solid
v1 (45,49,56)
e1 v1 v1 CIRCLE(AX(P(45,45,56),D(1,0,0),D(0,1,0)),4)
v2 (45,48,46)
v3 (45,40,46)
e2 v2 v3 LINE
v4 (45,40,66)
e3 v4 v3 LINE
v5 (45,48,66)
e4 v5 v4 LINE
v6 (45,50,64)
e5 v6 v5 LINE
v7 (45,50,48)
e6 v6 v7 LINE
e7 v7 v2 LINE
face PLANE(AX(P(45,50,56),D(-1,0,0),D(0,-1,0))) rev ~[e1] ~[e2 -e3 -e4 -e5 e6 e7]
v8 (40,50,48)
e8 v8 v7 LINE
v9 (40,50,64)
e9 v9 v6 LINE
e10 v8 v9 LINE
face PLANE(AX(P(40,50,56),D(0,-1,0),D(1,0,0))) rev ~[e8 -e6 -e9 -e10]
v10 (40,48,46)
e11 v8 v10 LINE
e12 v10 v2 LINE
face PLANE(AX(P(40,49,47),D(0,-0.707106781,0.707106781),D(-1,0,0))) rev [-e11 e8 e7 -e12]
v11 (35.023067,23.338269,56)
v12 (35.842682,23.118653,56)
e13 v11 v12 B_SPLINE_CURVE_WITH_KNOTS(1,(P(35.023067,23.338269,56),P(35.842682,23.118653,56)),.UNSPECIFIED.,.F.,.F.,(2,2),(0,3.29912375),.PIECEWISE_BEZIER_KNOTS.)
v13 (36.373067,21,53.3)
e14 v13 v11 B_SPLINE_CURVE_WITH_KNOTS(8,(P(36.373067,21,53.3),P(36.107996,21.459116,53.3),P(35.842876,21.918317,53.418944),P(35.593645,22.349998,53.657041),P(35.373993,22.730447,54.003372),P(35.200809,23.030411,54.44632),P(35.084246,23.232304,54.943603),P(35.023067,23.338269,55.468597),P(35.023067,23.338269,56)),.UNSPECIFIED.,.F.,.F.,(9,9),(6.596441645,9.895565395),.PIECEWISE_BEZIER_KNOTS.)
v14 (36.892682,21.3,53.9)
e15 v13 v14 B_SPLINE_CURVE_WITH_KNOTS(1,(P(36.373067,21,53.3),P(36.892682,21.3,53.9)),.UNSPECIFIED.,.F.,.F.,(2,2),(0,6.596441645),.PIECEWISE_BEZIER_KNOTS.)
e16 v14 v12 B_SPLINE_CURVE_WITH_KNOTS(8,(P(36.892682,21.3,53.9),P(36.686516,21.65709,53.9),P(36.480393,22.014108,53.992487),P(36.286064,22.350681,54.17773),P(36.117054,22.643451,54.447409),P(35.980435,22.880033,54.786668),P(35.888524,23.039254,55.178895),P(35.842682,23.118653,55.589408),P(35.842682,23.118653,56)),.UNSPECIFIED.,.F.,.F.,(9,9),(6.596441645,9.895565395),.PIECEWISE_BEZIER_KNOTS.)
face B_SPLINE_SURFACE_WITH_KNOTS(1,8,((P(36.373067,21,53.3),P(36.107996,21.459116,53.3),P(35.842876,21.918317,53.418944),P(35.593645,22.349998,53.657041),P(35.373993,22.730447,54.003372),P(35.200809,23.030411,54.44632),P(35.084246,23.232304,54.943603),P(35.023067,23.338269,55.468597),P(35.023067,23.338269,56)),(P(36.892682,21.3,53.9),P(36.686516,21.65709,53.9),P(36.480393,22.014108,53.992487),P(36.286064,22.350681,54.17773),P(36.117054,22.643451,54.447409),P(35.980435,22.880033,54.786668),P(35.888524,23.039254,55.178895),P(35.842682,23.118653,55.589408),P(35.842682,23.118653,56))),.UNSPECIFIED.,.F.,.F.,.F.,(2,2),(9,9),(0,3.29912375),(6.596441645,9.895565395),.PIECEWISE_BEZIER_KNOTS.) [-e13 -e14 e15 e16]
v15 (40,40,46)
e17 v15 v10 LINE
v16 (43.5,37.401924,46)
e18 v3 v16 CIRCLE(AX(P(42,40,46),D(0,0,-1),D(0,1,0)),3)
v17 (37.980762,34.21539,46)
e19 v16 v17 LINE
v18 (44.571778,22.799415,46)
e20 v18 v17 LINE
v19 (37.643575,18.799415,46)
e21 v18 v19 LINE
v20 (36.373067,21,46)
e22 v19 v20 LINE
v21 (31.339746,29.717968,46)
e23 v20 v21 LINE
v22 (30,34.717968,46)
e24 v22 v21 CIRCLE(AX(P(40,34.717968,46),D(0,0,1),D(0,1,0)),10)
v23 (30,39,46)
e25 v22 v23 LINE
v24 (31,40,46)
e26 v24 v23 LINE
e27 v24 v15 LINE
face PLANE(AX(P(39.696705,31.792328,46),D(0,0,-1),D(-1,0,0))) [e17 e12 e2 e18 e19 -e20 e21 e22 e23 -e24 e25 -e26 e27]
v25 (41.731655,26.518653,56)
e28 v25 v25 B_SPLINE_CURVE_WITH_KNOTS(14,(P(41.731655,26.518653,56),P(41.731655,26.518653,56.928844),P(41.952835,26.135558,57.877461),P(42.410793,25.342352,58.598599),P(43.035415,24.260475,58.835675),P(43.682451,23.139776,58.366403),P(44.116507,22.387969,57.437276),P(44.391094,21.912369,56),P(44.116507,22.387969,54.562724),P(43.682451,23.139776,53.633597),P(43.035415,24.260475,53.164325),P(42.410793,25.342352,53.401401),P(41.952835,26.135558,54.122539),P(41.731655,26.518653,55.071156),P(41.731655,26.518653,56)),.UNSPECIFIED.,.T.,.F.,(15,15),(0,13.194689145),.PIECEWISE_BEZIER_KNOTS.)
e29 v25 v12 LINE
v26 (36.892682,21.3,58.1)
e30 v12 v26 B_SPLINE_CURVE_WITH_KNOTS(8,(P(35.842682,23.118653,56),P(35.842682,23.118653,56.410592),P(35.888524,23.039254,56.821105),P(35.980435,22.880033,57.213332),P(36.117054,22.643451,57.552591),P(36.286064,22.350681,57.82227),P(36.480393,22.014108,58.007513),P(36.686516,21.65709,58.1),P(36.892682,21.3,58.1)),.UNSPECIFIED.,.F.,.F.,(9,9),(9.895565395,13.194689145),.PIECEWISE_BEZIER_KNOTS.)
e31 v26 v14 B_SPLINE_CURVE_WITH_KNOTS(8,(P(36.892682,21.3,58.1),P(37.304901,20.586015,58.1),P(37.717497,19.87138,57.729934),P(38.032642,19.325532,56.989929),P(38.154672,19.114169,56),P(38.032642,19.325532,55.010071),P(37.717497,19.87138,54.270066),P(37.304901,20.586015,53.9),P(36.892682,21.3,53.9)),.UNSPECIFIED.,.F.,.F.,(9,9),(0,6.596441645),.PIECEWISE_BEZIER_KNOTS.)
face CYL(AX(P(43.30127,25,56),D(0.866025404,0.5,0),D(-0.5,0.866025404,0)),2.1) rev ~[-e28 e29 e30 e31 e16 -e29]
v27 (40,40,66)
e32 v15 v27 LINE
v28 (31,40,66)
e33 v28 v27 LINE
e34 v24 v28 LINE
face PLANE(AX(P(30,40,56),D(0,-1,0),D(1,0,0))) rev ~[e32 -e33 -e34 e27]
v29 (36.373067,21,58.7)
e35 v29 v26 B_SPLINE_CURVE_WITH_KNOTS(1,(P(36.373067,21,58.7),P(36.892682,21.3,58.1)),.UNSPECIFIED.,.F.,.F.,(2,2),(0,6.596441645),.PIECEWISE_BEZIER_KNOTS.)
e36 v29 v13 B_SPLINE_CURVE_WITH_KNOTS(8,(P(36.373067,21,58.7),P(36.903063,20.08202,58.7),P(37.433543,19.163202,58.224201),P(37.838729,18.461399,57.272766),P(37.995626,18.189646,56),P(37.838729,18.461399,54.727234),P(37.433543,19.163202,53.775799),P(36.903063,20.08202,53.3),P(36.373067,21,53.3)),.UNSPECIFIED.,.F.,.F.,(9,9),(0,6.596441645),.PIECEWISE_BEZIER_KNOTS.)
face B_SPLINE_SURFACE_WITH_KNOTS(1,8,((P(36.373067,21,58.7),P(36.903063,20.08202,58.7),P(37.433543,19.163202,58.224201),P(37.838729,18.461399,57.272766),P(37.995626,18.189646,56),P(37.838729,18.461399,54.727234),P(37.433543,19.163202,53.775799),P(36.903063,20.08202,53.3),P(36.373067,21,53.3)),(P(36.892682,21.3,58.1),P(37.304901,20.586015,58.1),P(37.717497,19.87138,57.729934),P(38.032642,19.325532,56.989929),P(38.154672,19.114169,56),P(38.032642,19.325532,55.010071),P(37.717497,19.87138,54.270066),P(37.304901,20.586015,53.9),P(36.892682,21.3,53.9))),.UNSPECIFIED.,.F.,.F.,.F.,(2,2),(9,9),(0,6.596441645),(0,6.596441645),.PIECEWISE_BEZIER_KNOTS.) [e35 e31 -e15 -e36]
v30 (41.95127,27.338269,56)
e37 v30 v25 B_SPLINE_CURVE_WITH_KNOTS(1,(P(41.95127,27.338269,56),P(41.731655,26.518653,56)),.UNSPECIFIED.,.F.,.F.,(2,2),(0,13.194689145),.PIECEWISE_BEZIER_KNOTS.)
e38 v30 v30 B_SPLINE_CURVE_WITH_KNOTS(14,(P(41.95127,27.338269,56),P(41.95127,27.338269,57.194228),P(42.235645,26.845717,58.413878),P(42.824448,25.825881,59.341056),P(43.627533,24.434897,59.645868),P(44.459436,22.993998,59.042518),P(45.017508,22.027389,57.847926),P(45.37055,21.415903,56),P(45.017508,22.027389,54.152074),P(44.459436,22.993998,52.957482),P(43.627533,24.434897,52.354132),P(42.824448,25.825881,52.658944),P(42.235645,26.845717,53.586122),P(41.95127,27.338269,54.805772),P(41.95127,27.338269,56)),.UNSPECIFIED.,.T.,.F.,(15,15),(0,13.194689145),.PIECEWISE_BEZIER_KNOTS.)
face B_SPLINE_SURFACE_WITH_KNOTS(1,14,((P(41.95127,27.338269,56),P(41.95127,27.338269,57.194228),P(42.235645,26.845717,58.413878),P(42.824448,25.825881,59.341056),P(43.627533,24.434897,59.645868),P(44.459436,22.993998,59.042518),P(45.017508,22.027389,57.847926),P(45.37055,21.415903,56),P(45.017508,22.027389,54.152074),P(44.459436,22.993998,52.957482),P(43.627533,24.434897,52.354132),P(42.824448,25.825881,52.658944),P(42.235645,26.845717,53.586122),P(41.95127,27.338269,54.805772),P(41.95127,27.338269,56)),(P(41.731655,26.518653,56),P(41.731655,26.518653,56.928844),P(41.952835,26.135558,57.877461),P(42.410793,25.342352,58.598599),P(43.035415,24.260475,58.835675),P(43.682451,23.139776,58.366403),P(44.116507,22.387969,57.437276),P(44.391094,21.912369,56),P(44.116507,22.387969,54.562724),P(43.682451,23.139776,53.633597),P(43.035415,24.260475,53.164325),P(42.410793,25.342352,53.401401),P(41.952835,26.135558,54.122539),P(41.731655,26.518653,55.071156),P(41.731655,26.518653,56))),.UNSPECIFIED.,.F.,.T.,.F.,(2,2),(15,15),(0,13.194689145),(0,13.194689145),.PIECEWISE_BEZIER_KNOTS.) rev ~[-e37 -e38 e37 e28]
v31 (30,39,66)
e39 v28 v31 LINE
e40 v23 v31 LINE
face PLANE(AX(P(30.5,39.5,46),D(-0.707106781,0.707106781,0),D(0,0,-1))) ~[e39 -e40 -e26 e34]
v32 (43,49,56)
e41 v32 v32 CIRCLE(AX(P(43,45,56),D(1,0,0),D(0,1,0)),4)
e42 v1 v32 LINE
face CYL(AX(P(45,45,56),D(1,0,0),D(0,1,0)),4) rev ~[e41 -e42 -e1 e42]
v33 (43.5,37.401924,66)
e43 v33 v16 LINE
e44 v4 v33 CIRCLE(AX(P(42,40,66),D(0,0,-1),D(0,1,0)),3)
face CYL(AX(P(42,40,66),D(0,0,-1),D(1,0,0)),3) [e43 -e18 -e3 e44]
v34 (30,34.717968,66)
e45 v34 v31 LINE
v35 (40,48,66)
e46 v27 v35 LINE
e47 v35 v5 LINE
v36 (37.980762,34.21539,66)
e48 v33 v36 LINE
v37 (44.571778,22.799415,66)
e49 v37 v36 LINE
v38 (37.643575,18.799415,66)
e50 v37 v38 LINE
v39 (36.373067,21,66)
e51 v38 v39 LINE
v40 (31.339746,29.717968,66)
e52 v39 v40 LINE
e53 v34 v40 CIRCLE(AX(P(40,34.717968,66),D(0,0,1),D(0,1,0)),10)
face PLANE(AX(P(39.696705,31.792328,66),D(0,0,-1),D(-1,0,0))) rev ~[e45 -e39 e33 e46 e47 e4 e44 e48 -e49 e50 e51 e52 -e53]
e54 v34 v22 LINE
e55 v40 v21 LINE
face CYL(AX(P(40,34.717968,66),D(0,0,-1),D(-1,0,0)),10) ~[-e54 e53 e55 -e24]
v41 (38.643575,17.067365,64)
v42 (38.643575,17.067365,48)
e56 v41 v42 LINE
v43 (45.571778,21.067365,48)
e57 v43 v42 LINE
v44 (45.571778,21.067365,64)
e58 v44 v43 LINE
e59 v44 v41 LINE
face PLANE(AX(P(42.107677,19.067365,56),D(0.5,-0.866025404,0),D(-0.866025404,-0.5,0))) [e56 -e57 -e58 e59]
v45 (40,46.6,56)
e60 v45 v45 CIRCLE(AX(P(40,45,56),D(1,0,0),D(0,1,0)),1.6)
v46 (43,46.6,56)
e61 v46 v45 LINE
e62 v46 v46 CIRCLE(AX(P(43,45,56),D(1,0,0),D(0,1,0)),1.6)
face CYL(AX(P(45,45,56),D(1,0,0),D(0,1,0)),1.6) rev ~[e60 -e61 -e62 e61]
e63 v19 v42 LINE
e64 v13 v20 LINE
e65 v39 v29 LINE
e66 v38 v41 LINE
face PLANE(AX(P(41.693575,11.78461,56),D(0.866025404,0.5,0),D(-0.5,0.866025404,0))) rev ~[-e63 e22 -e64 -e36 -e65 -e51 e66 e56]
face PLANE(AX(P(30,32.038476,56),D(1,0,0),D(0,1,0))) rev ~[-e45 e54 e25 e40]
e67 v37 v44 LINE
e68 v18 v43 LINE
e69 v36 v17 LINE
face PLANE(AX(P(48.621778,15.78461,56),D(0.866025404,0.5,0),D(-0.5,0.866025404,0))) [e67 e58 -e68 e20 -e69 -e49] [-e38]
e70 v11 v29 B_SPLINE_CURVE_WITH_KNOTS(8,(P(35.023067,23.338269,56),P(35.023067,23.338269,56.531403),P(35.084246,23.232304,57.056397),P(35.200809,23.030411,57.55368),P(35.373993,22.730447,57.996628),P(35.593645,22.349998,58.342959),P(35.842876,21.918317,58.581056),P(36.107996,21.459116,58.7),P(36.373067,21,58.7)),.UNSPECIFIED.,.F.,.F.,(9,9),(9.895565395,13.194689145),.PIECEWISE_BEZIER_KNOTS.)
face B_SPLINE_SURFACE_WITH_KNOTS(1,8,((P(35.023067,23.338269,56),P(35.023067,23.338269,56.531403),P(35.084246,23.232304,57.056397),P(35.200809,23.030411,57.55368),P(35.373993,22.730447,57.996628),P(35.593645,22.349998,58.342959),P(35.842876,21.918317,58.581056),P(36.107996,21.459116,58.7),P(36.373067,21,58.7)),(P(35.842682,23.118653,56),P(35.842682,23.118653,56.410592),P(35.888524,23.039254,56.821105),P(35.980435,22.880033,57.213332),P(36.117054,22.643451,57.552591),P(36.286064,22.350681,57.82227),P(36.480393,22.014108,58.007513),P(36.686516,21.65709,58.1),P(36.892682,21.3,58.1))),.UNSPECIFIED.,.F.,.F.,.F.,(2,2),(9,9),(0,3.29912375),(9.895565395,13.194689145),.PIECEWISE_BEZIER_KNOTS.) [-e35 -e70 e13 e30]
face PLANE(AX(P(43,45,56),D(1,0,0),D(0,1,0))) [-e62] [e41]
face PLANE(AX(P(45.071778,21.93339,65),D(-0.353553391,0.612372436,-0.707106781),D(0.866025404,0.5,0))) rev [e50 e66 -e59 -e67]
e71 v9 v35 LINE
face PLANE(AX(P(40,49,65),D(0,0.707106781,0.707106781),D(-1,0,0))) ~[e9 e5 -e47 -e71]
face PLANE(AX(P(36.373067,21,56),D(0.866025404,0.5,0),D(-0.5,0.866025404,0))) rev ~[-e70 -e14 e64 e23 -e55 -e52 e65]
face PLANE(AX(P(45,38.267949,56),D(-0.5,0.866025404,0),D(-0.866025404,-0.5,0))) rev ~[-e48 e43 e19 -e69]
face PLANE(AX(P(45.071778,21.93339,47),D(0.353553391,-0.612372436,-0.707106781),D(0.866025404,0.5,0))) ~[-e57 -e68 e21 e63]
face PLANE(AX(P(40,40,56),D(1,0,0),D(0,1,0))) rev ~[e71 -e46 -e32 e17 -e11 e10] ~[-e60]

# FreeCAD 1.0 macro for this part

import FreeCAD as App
import Part
import Sketcher
Q = App.Units.Quantity


def edges_at(feature, points):
    """Names of the edges that pass closest to the given points."""
    edges = feature.Shape.Edges
    near = lambda p: min(range(len(edges)), key=lambda i: edges[i].distToShape(Part.Vertex(*p))[0])
    return sorted({f"Edge{near(p) + 1}" for p in points})

doc = App.newDocument("Part")
body = doc.addObject("PartDesign::Body", "Body")

# Sketch on XY plane
sketch1 = body.newObject("Sketcher::SketchObject", "Sketch")
sketch1.AttachmentSupport = (doc.getObject("XY_Plane"), [""])
sketch1.MapMode = "FlatFace"
sketch1.addGeometry([
    Part.LineSegment(App.Vector(45, 50, 0), App.Vector(40, 50, 0)),  # 0
    Part.LineSegment(App.Vector(40, 50, 0), App.Vector(40, 40, 0)),  # 1
    Part.LineSegment(App.Vector(40, 40, 0), App.Vector(30, 40, 0)),  # 2
    Part.LineSegment(App.Vector(30, 40, 0), App.Vector(30, 32, 0)),  # 3
    Part.LineSegment(App.Vector(30, 32, 0), App.Vector(36, 21, 0)),  # 4
    Part.LineSegment(App.Vector(36, 21, 0), App.Vector(42, 12, 0)),  # 5
    Part.LineSegment(App.Vector(42, 12, 0), App.Vector(49, 16, 0)),  # 6
    Part.LineSegment(App.Vector(49, 16, 0), App.Vector(38, 34, 0)),  # 7
    Part.LineSegment(App.Vector(38, 34, 0), App.Vector(45, 38, 0)),  # 8
    Part.LineSegment(App.Vector(45, 38, 0), App.Vector(45, 50, 0)),  # 9
], False)
sketch1.addConstraint([
    Sketcher.Constraint("Coincident", 0, 2, 1, 1),
    Sketcher.Constraint("Coincident", 1, 2, 2, 1),
    Sketcher.Constraint("Coincident", 2, 2, 3, 1),
    Sketcher.Constraint("Coincident", 3, 2, 4, 1),
    Sketcher.Constraint("Coincident", 4, 2, 5, 1),
    Sketcher.Constraint("Coincident", 5, 2, 6, 1),
    Sketcher.Constraint("Coincident", 6, 2, 7, 1),
    Sketcher.Constraint("Coincident", 7, 2, 8, 1),
    Sketcher.Constraint("Coincident", 8, 2, 9, 1),
    Sketcher.Constraint("Coincident", 9, 2, 0, 1),
    Sketcher.Constraint("Horizontal", 0),
    Sketcher.Constraint("Vertical", 1),
    Sketcher.Constraint("Horizontal", 2),
    Sketcher.Constraint("Vertical", 3),
    Sketcher.Constraint("Vertical", 9),
    Sketcher.Constraint("Parallel", 4, 5),
    Sketcher.Constraint("Perpendicular", 5, 6),
    Sketcher.Constraint("Perpendicular", 6, 7),
    Sketcher.Constraint("Perpendicular", 7, 8),
    Sketcher.Constraint("Equal", 2, 1),
    Sketcher.Constraint("DistanceX", 0, 2, 0, 1, 5.0),
    Sketcher.Constraint("DistanceX", 2, 2, 2, 1, 10.0),
    Sketcher.Constraint("Angle", 4, Q("-60 deg")),
    Sketcher.Constraint("Distance", 6, 8.0),
    Sketcher.Constraint("DistanceX", -1, 1, 0, 2, 40.0),
    Sketcher.Constraint("DistanceY", -1, 1, 0, 2, 50.0),
    Sketcher.Constraint("DistanceY", -1, 1, 4, 2, 21.0),
    Sketcher.Constraint("DistanceY", 9, 1, 9, 2, 11.732051),
    Sketcher.Constraint("DistanceY", 3, 2, 3, 1, 7.961524),
    Sketcher.Constraint("DistanceY", -1, 1, 5, 2, 11.78461),
])
pad1 = body.newObject("PartDesign::Pad", "Pad")
pad1.Profile = sketch1
pad1.Length = 20
pad1.Midplane = True

# Sketch on YZ plane
sketch2 = body.newObject("Sketcher::SketchObject", "Sketch001")
sketch2.AttachmentSupport = (doc.getObject("YZ_Plane"), [""])
sketch2.MapMode = "FlatFace"
sketch2.AttachmentOffset = App.Placement(App.Vector(0, 0, 45), App.Rotation())
sketch2.addGeometry(Part.Circle(App.Vector(45, 0, 0), App.Vector(0, 0, 1), 1.6), False)
sketch2.addConstraint([
    Sketcher.Constraint("PointOnObject", 0, 3, -1),
    Sketcher.Constraint("Diameter", 0, 3.2),
    Sketcher.Constraint("DistanceX", -1, 1, 0, 3, 45.0),
])
pocket1 = body.newObject("PartDesign::Pocket", "Pocket")
pocket1.Profile = sketch2
pocket1.Type = "ThroughAll"

# Sketch on YZ plane
sketch3 = body.newObject("Sketcher::SketchObject", "Sketch002")
sketch3.AttachmentSupport = (doc.getObject("YZ_Plane"), [""])
sketch3.MapMode = "FlatFace"
sketch3.AttachmentOffset = App.Placement(App.Vector(0, 0, 45), App.Rotation())
sketch3.addGeometry(Part.Circle(App.Vector(45, 0, 0), App.Vector(0, 0, 1), 4), False)
sketch3.addConstraint([
    Sketcher.Constraint("PointOnObject", 0, 3, -1),
    Sketcher.Constraint("Diameter", 0, 8.0),
    Sketcher.Constraint("DistanceX", -1, 1, 0, 3, 45.0),
])
pocket2 = body.newObject("PartDesign::Pocket", "Pocket001")
pocket2.Profile = sketch3
pocket2.Length = 2

# Sketch on an angled plane
sketch4 = body.newObject("Sketcher::SketchObject", "Sketch003")
sketch4.Placement = App.Placement(App.Vector(45.157677, 13.78461, 0), App.Rotation(App.Vector(-0.866025404, -0.5, 0), App.Vector(0, 0, -1), App.Vector(0.5, -0.866025404, 0), "ZXY"))
sketch4.addGeometry([
    Part.LineSegment(App.Vector(-4, 10, 0), App.Vector(-4, -10, 0)),
    Part.LineSegment(App.Vector(-4, -10, 0), App.Vector(4, -10, 0)),
    Part.LineSegment(App.Vector(4, -10, 0), App.Vector(4, 10, 0)),
    Part.LineSegment(App.Vector(4, 10, 0), App.Vector(-4, 10, 0)),
], False)
sketch4.addConstraint([
    Sketcher.Constraint("Coincident", 0, 2, 1, 1),
    Sketcher.Constraint("Coincident", 1, 2, 2, 1),
    Sketcher.Constraint("Coincident", 2, 2, 3, 1),
    Sketcher.Constraint("Coincident", 3, 2, 0, 1),
    Sketcher.Constraint("Vertical", 0),
    Sketcher.Constraint("Horizontal", 1),
    Sketcher.Constraint("Vertical", 2),
    Sketcher.Constraint("Horizontal", 3),
    Sketcher.Constraint("Symmetric", 0, 2, 2, 2, -1, 1),
    Sketcher.Constraint("DistanceX", 1, 1, 1, 2, 8.0),
    Sketcher.Constraint("DistanceY", 0, 2, 0, 1, 20.0),
])
pocket3 = body.newObject("PartDesign::Pocket", "Pocket002")
pocket3.Profile = sketch4
pocket3.Length = 6.1
doc.recompute()

chamfer = body.newObject("PartDesign::Chamfer", "Chamfer")
chamfer.Base = (pocket3, edges_at(pocket3, [
    (42.5, 50, 10),
    (42.5, 50, -10),
    (42.108, 19.067, 10),
    (42.108, 19.067, -10),
]))
chamfer.Size = 2
doc.recompute()

fillet = body.newObject("PartDesign::Fillet", "Fillet")
fillet.Base = (chamfer, edges_at(chamfer, [(30, 32.038, 0)]))
fillet.Radius = 10
doc.recompute()

fillet2 = body.newObject("PartDesign::Fillet", "Fillet001")
fillet2.Base = (fillet, edges_at(fillet, [(45, 38.268, 0)]))
fillet2.Radius = 3
doc.recompute()

chamfer2 = body.newObject("PartDesign::Chamfer", "Chamfer001")
chamfer2.Base = (fillet2, edges_at(fillet2, [(30, 40, 0)]))
chamfer2.Size = 1

# Sketch on an angled plane
sketch5 = body.newObject("Sketcher::SketchObject", "Sketch004")
sketch5.Placement = App.Placement(App.Vector(43.30127, 25, 0), App.Rotation(App.Vector(-0.5, 0.866025404, 0), App.Vector(0, 0, 1), App.Vector(0.866025404, 0.5, 0), "ZXY"))
sketch5.addGeometry(Part.Circle(App.Vector(0, 0, 0), App.Vector(0, 0, 1), 2.1), False)
sketch5.addConstraint([
    Sketcher.Constraint("Coincident", 0, 3, -1, 1),
    Sketcher.Constraint("Diameter", 0, 4.2),
])
pocket4 = body.newObject("PartDesign::Pocket", "Pocket003")
pocket4.Profile = sketch5
pocket4.Type = "ThroughAll"
doc.recompute()

chamfer3 = body.newObject("PartDesign::Chamfer", "Chamfer002")
chamfer3.Base = (pocket4, edges_at(pocket4, [(44.351, 23.181, 0), (37.423, 19.181, 0)]))
chamfer3.Size = 0.6
body2 = doc.addObject("PartDesign::Body", "Body001")
doc.recompute()

body.Placement = App.Placement(App.Vector(0, 0, 56), App.Rotation(App.Vector(0, 0, 1), 0))
boolean = body2.newObject("PartDesign::Boolean", "Boolean")
boolean.Type = "Fuse"
boolean.addObjects([body])

doc.recompute()
